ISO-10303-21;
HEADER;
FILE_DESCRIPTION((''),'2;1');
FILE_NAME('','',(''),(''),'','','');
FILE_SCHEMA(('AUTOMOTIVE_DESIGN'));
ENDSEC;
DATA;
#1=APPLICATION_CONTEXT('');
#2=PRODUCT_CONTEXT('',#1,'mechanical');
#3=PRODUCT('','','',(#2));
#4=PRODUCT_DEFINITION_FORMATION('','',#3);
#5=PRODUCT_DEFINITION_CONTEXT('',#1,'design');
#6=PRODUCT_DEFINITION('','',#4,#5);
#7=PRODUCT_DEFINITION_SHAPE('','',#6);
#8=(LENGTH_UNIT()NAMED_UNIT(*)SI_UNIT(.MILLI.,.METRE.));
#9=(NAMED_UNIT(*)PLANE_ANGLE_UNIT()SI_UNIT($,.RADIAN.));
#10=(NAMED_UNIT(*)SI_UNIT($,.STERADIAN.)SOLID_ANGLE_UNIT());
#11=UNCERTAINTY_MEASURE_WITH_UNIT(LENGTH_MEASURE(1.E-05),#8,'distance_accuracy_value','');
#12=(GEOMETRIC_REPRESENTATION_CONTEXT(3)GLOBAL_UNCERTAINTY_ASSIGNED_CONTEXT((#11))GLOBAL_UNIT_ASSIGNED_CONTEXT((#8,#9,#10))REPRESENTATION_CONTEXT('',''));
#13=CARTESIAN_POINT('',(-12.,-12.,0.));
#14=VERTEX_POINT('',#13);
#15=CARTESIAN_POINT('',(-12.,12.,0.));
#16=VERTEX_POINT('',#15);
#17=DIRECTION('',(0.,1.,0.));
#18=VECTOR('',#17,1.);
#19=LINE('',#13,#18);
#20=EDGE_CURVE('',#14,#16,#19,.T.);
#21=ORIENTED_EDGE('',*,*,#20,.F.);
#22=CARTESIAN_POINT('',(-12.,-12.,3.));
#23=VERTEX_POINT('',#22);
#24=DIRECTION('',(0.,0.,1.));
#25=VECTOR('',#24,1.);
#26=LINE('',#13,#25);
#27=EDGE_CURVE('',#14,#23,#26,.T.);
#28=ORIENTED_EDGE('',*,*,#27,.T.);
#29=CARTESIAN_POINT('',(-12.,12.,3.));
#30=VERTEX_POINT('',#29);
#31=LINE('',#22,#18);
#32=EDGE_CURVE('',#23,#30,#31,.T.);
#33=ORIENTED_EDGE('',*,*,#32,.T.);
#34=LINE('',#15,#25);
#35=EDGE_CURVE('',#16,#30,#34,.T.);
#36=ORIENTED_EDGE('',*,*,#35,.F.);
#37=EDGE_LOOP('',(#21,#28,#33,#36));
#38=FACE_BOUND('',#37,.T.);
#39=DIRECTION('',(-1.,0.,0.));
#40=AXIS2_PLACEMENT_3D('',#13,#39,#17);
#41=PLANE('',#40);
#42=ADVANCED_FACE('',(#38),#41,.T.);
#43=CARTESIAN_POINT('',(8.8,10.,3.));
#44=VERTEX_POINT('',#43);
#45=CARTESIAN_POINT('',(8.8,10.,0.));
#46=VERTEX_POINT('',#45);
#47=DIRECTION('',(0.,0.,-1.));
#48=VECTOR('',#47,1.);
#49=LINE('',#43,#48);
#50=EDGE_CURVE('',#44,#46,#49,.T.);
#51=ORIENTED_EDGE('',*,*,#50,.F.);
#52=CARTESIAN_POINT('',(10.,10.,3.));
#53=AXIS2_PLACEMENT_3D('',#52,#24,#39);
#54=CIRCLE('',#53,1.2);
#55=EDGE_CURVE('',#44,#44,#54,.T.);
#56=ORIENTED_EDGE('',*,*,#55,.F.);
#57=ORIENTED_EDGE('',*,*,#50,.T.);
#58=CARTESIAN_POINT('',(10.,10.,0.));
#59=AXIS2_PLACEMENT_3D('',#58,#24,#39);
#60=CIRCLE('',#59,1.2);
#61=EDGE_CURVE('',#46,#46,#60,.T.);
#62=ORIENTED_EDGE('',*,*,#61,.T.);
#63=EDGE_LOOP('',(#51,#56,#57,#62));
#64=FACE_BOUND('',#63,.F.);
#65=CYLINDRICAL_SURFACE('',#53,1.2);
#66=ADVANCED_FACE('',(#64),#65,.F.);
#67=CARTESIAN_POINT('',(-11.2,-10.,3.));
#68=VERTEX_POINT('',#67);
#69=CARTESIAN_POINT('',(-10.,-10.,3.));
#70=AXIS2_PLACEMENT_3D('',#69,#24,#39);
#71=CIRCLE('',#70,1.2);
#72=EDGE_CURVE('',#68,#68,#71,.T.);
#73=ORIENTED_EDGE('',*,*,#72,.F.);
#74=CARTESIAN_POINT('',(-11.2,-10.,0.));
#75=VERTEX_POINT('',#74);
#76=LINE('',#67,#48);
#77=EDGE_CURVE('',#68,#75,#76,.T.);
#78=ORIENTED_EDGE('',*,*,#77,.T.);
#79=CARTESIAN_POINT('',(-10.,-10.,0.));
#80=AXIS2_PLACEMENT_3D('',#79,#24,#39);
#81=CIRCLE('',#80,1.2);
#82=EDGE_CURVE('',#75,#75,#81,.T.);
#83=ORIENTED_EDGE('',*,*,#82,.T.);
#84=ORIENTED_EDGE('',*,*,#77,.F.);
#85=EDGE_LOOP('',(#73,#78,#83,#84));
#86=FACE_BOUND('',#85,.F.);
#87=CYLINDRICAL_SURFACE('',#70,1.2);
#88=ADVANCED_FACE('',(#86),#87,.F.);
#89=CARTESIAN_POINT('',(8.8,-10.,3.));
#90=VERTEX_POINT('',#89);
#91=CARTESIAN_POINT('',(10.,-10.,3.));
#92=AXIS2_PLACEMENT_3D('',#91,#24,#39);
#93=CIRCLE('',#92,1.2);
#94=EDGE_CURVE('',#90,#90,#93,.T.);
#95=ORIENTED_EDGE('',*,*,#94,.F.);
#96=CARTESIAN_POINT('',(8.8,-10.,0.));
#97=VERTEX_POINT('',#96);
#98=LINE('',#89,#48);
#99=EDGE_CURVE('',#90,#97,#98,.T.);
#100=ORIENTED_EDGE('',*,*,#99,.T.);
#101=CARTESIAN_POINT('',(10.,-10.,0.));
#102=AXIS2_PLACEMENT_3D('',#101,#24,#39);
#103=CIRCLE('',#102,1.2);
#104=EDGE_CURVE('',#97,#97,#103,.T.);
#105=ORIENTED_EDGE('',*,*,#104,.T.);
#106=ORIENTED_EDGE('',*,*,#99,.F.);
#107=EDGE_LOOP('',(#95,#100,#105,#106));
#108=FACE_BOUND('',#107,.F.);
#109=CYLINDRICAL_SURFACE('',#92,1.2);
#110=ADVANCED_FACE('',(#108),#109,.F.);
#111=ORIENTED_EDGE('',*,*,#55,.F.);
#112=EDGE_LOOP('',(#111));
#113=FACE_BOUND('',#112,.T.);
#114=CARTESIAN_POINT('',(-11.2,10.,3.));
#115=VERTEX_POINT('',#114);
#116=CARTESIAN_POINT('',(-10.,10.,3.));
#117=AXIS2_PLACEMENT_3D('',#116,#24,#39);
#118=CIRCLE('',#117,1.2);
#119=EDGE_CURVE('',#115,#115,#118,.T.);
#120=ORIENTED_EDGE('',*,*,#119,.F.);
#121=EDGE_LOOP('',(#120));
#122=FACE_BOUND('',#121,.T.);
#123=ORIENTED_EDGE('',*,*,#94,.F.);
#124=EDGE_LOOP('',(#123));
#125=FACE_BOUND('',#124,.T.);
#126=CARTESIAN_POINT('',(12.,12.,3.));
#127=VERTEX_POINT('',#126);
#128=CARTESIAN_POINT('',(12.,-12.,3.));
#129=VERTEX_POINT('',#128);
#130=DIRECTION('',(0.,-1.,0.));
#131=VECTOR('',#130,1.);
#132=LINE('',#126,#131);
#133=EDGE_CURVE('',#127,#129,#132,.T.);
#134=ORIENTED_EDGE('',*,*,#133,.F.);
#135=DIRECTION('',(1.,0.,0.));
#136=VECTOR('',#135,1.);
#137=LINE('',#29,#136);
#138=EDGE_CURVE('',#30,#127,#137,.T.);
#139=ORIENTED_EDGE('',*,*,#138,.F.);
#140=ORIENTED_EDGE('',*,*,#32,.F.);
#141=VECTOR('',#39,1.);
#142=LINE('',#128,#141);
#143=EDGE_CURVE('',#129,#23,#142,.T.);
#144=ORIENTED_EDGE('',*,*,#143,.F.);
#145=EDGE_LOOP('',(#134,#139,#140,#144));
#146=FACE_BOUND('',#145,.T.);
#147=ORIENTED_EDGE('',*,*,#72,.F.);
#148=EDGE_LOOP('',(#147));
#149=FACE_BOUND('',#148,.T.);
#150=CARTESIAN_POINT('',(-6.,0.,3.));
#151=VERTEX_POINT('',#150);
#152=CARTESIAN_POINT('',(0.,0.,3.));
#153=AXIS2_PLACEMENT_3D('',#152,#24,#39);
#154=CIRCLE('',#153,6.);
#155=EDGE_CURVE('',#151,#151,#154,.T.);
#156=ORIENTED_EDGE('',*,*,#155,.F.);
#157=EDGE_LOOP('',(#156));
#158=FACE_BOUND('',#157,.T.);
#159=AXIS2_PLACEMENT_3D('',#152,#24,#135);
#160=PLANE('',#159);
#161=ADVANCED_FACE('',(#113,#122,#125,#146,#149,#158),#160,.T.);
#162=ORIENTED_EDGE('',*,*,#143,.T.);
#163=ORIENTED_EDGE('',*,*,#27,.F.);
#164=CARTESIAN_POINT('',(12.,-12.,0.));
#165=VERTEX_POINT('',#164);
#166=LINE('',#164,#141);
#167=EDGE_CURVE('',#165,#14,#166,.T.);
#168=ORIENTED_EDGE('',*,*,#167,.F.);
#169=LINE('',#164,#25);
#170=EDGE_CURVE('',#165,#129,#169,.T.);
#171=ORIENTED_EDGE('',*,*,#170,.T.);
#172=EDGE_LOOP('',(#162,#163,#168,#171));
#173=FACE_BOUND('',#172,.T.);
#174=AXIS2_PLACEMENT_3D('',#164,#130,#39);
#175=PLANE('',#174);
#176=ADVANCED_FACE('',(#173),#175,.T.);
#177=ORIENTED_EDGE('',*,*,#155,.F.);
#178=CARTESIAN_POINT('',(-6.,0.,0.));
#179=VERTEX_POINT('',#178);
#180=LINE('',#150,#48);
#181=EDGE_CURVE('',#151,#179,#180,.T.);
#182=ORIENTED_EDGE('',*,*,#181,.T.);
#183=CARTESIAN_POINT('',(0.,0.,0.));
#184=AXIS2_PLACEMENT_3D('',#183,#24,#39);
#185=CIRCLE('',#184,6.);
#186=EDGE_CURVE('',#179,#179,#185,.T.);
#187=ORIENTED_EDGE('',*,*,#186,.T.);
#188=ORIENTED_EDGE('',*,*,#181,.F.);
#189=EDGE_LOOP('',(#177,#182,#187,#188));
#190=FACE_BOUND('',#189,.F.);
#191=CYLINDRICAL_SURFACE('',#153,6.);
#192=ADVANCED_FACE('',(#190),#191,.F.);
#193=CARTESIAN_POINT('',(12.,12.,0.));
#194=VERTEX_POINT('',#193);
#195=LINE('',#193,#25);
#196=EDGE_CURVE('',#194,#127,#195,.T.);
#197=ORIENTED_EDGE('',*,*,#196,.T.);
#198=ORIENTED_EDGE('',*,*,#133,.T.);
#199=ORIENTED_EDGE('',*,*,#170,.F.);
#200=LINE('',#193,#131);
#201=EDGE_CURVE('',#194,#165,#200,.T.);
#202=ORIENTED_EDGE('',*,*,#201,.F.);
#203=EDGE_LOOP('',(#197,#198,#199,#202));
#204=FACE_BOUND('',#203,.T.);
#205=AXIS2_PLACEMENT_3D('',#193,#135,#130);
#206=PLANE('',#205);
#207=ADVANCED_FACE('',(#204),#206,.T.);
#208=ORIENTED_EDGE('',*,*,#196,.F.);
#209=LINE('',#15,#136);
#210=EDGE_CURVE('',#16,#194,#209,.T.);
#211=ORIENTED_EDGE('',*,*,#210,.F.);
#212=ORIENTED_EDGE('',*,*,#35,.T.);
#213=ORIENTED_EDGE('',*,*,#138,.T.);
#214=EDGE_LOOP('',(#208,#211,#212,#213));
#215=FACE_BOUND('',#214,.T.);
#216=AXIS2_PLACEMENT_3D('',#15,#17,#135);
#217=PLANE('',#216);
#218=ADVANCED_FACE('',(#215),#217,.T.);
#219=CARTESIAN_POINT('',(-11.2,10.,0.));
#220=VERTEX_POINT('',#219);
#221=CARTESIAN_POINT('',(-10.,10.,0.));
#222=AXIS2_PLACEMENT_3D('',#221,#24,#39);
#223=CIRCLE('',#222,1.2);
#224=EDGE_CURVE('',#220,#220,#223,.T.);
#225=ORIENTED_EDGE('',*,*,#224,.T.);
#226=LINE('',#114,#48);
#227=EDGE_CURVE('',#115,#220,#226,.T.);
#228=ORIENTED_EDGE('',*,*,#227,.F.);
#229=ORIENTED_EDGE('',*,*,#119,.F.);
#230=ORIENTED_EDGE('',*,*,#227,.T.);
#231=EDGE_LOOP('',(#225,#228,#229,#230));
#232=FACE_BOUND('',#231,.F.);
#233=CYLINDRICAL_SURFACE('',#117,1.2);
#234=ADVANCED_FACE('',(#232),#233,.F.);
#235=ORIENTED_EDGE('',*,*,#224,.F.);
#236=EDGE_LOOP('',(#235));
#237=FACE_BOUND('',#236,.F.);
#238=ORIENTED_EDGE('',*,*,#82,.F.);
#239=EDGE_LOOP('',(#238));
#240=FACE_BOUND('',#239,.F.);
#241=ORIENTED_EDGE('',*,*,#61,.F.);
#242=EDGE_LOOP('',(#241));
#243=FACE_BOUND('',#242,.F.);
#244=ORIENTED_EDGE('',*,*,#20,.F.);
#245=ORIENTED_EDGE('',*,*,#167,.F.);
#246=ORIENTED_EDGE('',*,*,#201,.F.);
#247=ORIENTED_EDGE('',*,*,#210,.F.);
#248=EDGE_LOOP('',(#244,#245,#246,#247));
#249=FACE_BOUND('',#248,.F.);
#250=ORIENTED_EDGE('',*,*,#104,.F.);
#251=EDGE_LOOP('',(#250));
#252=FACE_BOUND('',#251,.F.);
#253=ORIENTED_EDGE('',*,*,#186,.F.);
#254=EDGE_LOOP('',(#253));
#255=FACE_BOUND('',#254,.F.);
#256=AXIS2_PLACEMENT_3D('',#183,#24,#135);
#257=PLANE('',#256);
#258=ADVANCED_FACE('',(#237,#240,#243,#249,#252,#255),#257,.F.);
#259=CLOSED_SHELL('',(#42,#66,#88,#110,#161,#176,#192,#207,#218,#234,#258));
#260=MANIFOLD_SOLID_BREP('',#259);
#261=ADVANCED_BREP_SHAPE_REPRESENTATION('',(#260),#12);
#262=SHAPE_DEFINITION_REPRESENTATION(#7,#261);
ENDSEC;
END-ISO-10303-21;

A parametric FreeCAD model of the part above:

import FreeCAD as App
import Part
import Sketcher
from FreeCAD import Vector
Q = App.Units.Quantity

doc = App.newDocument("Part")
body = doc.addObject("PartDesign::Body", "Body")

sketch1 = body.newObject("Sketcher::SketchObject", "Sketch")
sketch1.AttachmentSupport = (doc.getObject("XY_Plane"), [""])
sketch1.MapMode = "FlatFace"
sketch1.addGeometry(Part.LineSegment(Vector(-12, -12, 0), Vector(12, -12, 0)), False)
sketch1.addGeometry(Part.LineSegment(Vector(12, -12, 0), Vector(12, 12, 0)), False)
sketch1.addGeometry(Part.LineSegment(Vector(12, 12, 0), Vector(-12, 12, 0)), False)
sketch1.addGeometry(Part.LineSegment(Vector(-12, 12, 0), Vector(-12, -12, 0)), False)
sketch1.addConstraint(Sketcher.Constraint("Coincident", 0, 2, 1, 1))
sketch1.addConstraint(Sketcher.Constraint("Coincident", 1, 2, 2, 1))
sketch1.addConstraint(Sketcher.Constraint("Coincident", 2, 2, 3, 1))
sketch1.addConstraint(Sketcher.Constraint("Coincident", 3, 2, 0, 1))
sketch1.addConstraint(Sketcher.Constraint("Horizontal", 0))
sketch1.addConstraint(Sketcher.Constraint("Vertical", 1))
sketch1.addConstraint(Sketcher.Constraint("Horizontal", 2))
sketch1.addConstraint(Sketcher.Constraint("Vertical", 3))
sketch1.addConstraint(Sketcher.Constraint("Symmetric", 0, 2, 2, 2, -1, 1))
sketch1.addConstraint(Sketcher.Constraint("Equal", 2, 1))
sketch1.addConstraint(Sketcher.Constraint("DistanceX", 0, 1, 0, 2, Q("24 mm")))
pad1 = body.newObject("PartDesign::Pad", "Pad")
pad1.Profile = sketch1
pad1.Length = 3

sketch2 = body.newObject("Sketcher::SketchObject", "Sketch001")
sketch2.AttachmentSupport = (doc.getObject("XY_Plane"), [""])
sketch2.MapMode = "FlatFace"
sketch2.AttachmentOffset = App.Placement(Vector(0, 0, 3), App.Rotation())
sketch2.addGeometry(Part.Circle(Vector(-10, 10, 0), Vector(0, 0, 1), 1.1), False)
sketch2.addGeometry(Part.Circle(Vector(10, 10, 0), Vector(0, 0, 1), 1.1), False)
sketch2.addGeometry(Part.Circle(Vector(-10, -10, 0), Vector(0, 0, 1), 1.1), False)
sketch2.addGeometry(Part.Circle(Vector(10, -10, 0), Vector(0, 0, 1), 1.1), False)
sketch2.addConstraint(Sketcher.Constraint("Equal", 0, 1))
sketch2.addConstraint(Sketcher.Constraint("Equal", 1, 2))
sketch2.addConstraint(Sketcher.Constraint("Equal", 2, 3))
sketch2.addConstraint(Sketcher.Constraint("Symmetric", 1, 3, 2, 3, -1, 1))
sketch2.addConstraint(Sketcher.Constraint("Symmetric", 0, 3, 3, 3, -1, 1))
sketch2.addConstraint(Sketcher.Constraint("Symmetric", 0, 3, 1, 3, -2))
sketch2.addConstraint(Sketcher.Constraint("Diameter", 0, Q("2.2 mm")))
sketch2.addConstraint(Sketcher.Constraint("DistanceX", 0, 3, -1, 1, Q("10 mm")))
sketch2.addConstraint(Sketcher.Constraint("DistanceY", -1, 1, 0, 3, Q("10 mm")))
pocket1 = body.newObject("PartDesign::Pocket", "Pocket")
pocket1.Profile = sketch2
pocket1.Type = "ThroughAll"

sketch3 = body.newObject("Sketcher::SketchObject", "Sketch002")
sketch3.AttachmentSupport = (doc.getObject("XY_Plane"), [""])
sketch3.MapMode = "FlatFace"
sketch3.AttachmentOffset = App.Placement(Vector(0, 0, 3), App.Rotation())
sketch3.addGeometry(Part.Circle(Vector(0, 0, 0), Vector(0, 0, 1), 6), False)
sketch3.addConstraint(Sketcher.Constraint("Coincident", 0, 3, -1, 1))
sketch3.addConstraint(Sketcher.Constraint("Diameter", 0, Q("12 mm")))
pocket2 = body.newObject("PartDesign::Pocket", "Pocket001")
pocket2.Profile = sketch3
pocket2.Length = 6

sketch4 = body.newObject("Sketcher::SketchObject", "Sketch003")
sketch4.AttachmentSupport = (doc.getObject("XY_Plane"), [""])
sketch4.MapMode = "FlatFace"
sketch4.AttachmentOffset = App.Placement(Vector(0, 0, 3), App.Rotation())
sketch4.addGeometry(Part.Circle(Vector(-10, 10, 0), Vector(0, 0, 1), 1.2), False)
sketch4.addGeometry(Part.Circle(Vector(-10, 10, 0), Vector(0, 0, 1), 1.1), False)
sketch4.addGeometry(Part.Circle(Vector(10, 10, 0), Vector(0, 0, 1), 1.2), False)
sketch4.addGeometry(Part.Circle(Vector(10, 10, 0), Vector(0, 0, 1), 1.1), False)
sketch4.addGeometry(Part.Circle(Vector(-10, -10, 0), Vector(0, 0, 1), 1.2), False)
sketch4.addGeometry(Part.Circle(Vector(-10, -10, 0), Vector(0, 0, 1), 1.1), False)
sketch4.addGeometry(Part.Circle(Vector(10, -10, 0), Vector(0, 0, 1), 1.2), False)
sketch4.addGeometry(Part.Circle(Vector(10, -10, 0), Vector(0, 0, 1), 1.1), False)
sketch4.addConstraint(Sketcher.Constraint("Coincident", 1, 3, 0, 3))
sketch4.addConstraint(Sketcher.Constraint("Coincident", 3, 3, 2, 3))
sketch4.addConstraint(Sketcher.Constraint("Coincident", 5, 3, 4, 3))
sketch4.addConstraint(Sketcher.Constraint("Coincident", 7, 3, 6, 3))
sketch4.addConstraint(Sketcher.Constraint("Equal", 0, 2))
sketch4.addConstraint(Sketcher.Constraint("Equal", 1, 3))
sketch4.addConstraint(Sketcher.Constraint("Equal", 2, 4))
sketch4.addConstraint(Sketcher.Constraint("Equal", 3, 5))
sketch4.addConstraint(Sketcher.Constraint("Equal", 4, 6))
sketch4.addConstraint(Sketcher.Constraint("Equal", 5, 7))
sketch4.addConstraint(Sketcher.Constraint("Symmetric", 2, 3, 4, 3, -1, 1))
sketch4.addConstraint(Sketcher.Constraint("Symmetric", 0, 3, 6, 3, -1, 1))
sketch4.addConstraint(Sketcher.Constraint("Symmetric", 0, 3, 2, 3, -2))
sketch4.addConstraint(Sketcher.Constraint("Diameter", 0, Q("2.4 mm")))
sketch4.addConstraint(Sketcher.Constraint("Diameter", 1, Q("2.2 mm")))
sketch4.addConstraint(Sketcher.Constraint("DistanceX", 0, 3, -1, 1, Q("10 mm")))
sketch4.addConstraint(Sketcher.Constraint("DistanceY", -1, 1, 0, 3, Q("10 mm")))
pocket3 = body.newObject("PartDesign::Pocket", "Pocket002")
pocket3.Profile = sketch4
pocket3.Length = 5

doc.recompute()
